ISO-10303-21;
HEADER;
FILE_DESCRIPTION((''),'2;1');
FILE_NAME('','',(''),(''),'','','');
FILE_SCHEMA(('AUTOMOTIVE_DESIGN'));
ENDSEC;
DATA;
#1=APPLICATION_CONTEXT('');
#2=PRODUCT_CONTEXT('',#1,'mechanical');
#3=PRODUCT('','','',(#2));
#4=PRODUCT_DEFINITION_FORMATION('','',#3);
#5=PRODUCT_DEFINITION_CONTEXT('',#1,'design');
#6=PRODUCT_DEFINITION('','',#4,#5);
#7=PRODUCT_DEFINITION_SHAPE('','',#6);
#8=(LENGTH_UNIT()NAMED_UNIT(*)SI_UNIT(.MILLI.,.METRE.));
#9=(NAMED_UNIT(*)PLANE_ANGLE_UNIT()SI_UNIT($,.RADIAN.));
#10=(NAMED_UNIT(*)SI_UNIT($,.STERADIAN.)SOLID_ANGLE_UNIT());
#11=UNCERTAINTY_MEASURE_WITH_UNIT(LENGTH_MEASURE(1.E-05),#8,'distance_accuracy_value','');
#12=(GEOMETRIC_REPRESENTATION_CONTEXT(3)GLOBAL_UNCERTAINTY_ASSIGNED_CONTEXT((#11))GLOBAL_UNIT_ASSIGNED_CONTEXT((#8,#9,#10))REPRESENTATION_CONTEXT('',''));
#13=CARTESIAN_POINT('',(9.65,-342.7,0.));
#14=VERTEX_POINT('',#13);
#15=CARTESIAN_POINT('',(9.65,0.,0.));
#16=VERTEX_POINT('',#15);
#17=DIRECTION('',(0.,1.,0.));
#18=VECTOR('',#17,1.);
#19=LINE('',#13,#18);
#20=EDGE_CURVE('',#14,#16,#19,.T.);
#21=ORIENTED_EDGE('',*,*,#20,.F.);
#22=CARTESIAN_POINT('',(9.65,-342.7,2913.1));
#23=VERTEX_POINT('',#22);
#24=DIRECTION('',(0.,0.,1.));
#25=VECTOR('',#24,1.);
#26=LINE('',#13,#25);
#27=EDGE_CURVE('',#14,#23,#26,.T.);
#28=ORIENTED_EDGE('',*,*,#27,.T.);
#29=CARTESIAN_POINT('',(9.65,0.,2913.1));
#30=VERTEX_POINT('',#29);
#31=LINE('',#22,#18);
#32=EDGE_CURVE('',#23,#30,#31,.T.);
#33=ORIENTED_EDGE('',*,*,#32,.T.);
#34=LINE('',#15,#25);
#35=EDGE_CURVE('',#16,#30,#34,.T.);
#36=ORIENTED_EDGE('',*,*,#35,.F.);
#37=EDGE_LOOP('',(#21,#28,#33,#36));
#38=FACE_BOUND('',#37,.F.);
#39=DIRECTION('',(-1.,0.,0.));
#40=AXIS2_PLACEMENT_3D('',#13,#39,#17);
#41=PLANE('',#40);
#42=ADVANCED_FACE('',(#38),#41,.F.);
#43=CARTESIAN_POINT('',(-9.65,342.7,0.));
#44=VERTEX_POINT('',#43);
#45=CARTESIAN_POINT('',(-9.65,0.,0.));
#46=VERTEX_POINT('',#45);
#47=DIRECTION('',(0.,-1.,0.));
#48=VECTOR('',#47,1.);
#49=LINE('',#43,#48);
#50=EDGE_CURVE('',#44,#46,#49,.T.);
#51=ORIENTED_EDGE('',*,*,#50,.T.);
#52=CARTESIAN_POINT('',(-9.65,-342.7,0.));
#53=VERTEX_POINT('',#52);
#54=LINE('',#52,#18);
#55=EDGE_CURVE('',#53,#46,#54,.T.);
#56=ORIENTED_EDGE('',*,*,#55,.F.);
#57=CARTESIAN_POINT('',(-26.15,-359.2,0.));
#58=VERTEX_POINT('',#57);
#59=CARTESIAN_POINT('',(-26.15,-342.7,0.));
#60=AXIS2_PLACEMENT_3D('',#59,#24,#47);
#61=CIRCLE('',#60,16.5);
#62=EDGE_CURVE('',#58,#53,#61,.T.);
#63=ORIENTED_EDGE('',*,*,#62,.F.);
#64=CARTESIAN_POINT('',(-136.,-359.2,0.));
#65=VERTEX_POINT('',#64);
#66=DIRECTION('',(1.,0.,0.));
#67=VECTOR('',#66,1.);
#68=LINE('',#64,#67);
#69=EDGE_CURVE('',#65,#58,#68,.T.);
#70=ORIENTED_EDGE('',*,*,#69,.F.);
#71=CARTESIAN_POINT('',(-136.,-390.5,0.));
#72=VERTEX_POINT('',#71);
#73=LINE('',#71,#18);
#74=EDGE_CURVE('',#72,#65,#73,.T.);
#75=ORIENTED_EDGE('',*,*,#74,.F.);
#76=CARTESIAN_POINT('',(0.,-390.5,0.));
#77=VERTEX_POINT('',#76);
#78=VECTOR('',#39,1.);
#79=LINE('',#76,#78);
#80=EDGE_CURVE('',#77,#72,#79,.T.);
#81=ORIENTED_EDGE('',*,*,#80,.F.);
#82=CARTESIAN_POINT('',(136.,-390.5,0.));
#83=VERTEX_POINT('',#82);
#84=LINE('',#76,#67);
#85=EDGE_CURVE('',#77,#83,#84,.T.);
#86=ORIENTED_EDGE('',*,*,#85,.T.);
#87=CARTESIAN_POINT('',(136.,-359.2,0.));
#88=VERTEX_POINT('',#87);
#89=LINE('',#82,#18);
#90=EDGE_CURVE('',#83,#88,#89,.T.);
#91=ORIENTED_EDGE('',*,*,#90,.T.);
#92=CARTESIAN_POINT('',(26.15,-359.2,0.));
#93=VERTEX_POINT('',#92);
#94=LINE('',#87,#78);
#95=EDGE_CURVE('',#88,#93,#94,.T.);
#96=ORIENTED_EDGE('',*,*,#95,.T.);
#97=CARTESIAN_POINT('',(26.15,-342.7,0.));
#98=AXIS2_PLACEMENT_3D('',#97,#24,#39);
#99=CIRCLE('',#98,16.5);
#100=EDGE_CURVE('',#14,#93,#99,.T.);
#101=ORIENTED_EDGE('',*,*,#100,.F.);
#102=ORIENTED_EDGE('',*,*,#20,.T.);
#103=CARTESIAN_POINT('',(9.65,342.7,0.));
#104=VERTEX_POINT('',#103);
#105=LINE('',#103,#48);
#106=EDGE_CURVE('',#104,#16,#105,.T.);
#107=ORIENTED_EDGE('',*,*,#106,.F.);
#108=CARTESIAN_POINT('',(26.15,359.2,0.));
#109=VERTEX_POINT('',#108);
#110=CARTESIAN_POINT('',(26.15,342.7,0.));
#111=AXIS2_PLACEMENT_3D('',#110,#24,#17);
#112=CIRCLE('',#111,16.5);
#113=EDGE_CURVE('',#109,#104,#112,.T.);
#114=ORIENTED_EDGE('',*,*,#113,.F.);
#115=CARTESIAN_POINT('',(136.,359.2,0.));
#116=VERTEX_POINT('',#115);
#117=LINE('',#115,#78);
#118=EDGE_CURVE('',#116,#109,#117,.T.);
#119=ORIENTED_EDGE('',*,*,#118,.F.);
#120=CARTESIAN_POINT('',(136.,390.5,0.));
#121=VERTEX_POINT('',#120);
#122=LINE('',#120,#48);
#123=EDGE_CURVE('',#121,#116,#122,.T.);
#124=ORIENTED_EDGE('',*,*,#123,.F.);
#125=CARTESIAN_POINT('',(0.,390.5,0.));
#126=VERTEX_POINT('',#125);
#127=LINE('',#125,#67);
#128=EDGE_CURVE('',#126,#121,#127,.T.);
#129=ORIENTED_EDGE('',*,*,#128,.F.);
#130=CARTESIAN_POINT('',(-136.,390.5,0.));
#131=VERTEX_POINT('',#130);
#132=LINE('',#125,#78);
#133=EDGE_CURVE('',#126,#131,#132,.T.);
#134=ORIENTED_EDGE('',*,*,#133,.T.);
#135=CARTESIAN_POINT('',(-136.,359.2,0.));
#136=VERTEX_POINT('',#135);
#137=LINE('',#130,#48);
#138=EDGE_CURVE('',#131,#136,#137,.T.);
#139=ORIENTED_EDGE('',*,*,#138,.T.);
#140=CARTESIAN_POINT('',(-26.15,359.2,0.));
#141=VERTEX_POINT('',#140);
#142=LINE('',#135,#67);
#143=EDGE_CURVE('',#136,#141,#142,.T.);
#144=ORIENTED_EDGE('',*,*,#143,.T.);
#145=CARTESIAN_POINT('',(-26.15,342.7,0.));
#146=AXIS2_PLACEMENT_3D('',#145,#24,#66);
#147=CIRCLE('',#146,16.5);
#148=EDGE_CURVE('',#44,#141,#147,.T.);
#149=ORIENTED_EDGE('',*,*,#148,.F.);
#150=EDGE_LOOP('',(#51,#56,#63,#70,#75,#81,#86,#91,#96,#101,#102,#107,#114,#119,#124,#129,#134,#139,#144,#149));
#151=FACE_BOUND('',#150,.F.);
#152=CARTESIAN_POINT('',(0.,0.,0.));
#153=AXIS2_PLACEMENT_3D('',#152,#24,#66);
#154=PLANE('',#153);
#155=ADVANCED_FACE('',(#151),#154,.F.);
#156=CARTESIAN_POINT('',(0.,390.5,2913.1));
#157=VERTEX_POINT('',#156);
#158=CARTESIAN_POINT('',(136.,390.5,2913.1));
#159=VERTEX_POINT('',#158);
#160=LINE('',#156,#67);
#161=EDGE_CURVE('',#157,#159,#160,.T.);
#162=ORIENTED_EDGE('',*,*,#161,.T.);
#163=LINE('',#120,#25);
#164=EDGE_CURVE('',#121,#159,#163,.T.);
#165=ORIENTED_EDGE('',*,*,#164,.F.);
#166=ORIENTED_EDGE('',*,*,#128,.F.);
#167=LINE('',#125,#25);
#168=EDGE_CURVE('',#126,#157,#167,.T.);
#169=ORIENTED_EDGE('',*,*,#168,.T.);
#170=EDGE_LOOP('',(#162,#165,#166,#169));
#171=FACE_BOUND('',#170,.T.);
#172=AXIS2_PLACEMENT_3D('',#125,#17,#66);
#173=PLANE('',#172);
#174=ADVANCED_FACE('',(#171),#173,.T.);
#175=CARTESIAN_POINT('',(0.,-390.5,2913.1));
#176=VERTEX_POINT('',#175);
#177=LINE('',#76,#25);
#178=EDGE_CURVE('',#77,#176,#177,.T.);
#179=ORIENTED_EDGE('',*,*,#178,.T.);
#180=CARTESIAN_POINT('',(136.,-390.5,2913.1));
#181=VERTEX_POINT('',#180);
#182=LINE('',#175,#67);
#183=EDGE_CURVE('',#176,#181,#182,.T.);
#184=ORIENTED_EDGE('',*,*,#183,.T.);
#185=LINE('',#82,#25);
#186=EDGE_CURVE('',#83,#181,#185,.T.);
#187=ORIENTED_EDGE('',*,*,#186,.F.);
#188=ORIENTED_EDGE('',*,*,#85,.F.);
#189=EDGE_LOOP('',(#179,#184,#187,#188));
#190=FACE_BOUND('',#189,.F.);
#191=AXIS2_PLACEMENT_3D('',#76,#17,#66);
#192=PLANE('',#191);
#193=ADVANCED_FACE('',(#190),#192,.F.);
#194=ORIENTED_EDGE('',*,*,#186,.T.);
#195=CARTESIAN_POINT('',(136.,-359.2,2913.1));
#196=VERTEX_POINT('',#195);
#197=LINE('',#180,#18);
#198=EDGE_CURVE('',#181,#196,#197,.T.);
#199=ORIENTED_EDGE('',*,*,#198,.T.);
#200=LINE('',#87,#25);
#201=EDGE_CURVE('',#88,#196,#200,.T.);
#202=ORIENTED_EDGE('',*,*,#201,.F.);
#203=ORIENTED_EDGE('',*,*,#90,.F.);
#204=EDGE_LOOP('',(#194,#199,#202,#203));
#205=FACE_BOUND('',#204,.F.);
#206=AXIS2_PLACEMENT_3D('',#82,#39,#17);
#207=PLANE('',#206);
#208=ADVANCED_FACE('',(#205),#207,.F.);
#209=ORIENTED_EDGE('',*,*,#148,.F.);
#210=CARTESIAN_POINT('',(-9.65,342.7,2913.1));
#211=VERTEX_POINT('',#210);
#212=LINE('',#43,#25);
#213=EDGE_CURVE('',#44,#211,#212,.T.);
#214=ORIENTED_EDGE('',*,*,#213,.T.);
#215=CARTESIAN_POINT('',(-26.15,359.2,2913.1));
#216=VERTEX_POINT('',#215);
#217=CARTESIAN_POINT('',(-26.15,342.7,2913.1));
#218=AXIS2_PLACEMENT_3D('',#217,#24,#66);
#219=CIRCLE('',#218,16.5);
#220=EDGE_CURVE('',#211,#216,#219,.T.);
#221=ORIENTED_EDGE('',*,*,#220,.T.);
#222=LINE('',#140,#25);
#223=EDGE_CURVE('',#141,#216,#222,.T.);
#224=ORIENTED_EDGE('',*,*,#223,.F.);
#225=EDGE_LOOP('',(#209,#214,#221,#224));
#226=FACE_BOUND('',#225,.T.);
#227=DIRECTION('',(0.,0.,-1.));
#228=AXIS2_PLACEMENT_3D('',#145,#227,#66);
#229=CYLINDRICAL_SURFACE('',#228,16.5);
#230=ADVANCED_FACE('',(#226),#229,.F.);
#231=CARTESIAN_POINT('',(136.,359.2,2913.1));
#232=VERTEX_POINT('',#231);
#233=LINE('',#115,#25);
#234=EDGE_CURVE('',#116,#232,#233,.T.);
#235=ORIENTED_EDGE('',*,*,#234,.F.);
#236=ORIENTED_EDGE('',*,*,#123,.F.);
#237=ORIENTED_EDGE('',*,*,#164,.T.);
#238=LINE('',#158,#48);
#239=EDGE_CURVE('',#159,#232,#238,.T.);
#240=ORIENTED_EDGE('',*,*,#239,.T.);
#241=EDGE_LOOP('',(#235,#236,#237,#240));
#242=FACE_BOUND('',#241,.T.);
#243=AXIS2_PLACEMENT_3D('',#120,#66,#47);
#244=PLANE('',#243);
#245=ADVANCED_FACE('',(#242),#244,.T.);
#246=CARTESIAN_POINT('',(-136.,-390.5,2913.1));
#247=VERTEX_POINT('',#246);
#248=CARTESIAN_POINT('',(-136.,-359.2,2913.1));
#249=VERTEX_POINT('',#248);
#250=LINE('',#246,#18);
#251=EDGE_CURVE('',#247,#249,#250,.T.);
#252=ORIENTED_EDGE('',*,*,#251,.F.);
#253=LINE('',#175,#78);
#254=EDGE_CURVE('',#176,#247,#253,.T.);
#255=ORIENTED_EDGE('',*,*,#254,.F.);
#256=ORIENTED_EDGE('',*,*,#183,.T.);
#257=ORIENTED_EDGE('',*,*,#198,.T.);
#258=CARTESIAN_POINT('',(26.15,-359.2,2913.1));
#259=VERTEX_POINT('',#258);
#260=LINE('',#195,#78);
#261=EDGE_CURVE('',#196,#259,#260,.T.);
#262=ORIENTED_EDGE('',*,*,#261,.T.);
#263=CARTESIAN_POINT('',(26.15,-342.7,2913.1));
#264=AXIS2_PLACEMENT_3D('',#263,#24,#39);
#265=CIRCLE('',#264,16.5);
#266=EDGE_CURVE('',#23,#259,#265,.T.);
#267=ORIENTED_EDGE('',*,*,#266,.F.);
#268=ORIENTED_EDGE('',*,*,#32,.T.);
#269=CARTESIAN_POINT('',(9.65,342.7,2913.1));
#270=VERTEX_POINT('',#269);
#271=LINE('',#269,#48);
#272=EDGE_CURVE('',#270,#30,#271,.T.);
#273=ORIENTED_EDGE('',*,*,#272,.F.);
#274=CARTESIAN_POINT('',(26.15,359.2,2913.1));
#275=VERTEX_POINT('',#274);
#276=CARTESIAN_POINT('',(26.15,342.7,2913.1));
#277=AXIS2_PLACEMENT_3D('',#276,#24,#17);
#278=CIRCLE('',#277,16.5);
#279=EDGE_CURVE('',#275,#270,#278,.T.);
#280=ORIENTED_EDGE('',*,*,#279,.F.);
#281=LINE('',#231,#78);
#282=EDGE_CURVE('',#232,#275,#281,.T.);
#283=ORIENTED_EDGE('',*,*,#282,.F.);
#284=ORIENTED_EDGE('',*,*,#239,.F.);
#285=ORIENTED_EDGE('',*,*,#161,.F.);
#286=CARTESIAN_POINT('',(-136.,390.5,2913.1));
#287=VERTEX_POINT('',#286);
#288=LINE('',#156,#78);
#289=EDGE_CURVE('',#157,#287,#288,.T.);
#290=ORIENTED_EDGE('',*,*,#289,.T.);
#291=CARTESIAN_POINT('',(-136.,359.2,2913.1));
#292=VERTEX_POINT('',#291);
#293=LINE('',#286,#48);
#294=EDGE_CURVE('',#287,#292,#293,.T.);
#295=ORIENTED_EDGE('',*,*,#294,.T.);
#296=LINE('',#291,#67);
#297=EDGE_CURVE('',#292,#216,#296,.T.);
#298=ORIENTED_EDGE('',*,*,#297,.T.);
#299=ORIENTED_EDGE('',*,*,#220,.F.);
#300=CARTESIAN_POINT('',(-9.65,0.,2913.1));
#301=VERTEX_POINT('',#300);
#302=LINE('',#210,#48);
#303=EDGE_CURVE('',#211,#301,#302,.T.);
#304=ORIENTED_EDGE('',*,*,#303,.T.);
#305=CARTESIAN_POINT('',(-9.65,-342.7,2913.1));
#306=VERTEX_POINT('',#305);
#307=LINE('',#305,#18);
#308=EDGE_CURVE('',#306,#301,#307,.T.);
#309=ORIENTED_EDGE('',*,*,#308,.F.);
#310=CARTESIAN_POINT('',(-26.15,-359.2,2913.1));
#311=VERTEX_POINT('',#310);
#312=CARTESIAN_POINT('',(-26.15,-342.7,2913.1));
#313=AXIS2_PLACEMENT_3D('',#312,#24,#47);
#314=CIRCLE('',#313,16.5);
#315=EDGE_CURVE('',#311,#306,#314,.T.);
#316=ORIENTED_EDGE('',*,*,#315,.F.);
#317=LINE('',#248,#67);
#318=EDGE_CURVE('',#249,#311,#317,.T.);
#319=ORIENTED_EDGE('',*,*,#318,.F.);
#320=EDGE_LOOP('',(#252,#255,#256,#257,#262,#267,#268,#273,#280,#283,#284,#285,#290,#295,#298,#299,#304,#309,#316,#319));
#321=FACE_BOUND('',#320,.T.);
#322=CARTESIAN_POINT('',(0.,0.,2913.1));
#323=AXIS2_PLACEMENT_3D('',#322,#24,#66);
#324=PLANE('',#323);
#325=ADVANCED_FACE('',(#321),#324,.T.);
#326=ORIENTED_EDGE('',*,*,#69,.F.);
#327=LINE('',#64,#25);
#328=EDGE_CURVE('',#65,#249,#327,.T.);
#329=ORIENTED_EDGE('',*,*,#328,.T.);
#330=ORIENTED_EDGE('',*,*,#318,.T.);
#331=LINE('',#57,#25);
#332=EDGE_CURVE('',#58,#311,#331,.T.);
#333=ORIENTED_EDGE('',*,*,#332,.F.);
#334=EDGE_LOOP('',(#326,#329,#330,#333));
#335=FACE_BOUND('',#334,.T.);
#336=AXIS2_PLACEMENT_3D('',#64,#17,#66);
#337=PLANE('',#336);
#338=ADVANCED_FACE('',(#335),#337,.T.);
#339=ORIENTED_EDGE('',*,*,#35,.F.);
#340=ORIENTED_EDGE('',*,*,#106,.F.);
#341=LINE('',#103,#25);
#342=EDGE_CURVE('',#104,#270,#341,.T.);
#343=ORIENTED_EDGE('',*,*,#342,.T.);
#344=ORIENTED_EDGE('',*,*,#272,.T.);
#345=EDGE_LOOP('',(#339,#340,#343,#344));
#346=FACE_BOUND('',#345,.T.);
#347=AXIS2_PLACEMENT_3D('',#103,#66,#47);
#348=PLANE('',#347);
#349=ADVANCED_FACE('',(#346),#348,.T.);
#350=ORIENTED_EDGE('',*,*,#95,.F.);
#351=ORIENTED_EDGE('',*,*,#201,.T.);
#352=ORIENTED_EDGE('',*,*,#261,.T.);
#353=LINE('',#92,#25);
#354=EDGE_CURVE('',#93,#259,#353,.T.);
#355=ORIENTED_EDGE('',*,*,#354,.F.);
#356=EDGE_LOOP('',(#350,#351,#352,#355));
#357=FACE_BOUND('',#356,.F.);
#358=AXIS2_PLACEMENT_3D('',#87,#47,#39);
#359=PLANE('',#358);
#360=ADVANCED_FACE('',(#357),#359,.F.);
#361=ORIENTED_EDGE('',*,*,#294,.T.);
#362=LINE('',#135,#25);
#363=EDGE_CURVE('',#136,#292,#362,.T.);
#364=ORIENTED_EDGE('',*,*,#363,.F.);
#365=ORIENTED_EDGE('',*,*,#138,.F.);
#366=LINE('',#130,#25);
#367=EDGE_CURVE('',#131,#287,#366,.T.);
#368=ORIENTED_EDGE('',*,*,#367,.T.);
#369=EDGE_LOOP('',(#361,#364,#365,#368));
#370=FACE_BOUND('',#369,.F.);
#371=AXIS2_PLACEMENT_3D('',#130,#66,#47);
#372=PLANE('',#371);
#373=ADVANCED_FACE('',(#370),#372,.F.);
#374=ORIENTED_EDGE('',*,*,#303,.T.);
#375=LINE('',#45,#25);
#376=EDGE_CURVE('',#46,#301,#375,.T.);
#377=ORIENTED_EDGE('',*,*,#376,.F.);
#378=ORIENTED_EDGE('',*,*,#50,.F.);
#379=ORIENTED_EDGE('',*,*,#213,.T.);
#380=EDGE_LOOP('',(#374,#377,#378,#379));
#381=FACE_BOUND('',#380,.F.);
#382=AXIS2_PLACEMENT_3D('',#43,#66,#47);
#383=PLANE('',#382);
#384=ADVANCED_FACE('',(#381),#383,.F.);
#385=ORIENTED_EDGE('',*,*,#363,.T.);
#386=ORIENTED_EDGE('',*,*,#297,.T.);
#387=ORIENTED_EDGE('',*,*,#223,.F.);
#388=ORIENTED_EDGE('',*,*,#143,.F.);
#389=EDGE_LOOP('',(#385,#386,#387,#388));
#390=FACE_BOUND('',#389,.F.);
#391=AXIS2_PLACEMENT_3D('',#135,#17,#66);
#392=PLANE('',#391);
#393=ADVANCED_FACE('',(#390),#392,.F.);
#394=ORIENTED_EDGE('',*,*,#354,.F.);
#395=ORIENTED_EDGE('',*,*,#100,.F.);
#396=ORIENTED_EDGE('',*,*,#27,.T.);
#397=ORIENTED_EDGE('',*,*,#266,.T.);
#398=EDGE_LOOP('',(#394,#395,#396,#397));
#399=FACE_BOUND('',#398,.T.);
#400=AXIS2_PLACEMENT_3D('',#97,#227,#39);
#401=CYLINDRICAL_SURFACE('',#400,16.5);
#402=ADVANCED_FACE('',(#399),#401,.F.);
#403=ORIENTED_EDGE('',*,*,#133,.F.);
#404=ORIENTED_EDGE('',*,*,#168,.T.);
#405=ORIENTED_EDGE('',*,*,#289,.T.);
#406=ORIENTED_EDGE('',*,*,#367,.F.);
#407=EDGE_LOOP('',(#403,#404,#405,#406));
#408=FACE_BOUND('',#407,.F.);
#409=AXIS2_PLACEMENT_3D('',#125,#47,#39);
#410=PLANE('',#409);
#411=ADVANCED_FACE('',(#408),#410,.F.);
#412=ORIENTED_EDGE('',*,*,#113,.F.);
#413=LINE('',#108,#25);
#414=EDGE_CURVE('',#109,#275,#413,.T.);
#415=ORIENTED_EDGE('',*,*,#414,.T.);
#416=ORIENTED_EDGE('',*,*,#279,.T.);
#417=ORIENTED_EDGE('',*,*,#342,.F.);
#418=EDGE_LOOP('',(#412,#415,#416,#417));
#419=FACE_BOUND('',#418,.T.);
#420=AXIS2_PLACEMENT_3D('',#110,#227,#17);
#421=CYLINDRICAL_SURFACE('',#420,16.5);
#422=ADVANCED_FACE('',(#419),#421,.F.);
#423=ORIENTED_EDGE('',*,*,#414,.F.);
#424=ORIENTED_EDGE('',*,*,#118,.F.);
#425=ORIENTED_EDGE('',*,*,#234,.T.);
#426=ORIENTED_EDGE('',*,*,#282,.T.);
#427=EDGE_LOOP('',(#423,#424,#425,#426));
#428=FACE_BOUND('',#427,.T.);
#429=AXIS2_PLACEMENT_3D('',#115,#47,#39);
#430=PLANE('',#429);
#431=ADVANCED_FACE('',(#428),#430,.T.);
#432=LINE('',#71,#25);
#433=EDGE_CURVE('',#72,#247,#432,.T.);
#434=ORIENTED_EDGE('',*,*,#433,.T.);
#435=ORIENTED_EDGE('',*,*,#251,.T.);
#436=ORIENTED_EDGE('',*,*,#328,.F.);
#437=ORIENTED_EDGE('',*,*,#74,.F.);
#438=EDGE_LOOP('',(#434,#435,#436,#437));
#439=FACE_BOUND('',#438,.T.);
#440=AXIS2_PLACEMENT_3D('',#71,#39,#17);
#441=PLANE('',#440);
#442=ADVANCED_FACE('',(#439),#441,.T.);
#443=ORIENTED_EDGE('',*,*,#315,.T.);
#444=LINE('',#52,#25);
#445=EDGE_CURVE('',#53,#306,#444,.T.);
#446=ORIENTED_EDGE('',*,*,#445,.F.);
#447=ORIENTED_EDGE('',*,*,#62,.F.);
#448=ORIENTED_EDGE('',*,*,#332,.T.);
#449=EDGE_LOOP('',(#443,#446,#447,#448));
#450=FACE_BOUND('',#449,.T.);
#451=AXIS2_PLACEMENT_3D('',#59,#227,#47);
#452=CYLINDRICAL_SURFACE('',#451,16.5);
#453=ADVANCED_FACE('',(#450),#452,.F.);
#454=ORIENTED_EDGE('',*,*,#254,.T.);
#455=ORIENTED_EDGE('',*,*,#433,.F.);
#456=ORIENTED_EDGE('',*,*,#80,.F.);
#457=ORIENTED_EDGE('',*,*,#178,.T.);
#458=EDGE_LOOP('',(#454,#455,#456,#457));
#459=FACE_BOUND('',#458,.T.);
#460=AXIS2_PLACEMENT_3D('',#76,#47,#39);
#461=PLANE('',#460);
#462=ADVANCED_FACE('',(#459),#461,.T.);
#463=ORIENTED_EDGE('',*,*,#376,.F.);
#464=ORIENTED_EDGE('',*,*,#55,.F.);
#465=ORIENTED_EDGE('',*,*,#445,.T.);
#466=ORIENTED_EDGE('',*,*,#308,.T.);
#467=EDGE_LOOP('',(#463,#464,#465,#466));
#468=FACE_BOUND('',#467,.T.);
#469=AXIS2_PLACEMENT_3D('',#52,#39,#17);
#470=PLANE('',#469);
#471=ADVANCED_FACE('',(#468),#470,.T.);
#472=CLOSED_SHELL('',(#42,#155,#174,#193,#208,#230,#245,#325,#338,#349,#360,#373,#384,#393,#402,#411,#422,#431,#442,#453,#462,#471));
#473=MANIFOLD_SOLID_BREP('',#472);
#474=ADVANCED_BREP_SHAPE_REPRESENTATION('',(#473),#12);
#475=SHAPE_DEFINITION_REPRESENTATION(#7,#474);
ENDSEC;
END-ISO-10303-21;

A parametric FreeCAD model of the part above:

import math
import FreeCAD as App
import Part
import Sketcher
from FreeCAD import Vector

doc = App.newDocument("Part")
body = doc.addObject("PartDesign::Body", "Body")

# Sketch on XY plane
sketch1 = body.newObject("Sketcher::SketchObject", "Sketch")
sketch1.AttachmentSupport = (doc.getObject("XY_Plane"), [""])
sketch1.MapMode = "FlatFace"
sketch1.addGeometry([
    Part.LineSegment(Vector(-136, -359, 0), Vector(-136, -390, 0)),  # 0
    Part.LineSegment(Vector(-136, -390, 0), Vector(136, -390, 0)),  # 1
    Part.LineSegment(Vector(136, -390, 0), Vector(136, -359, 0)),  # 2
    Part.LineSegment(Vector(136, -359, 0), Vector(26, -359, 0)),  # 3
    Part.ArcOfCircle(Part.Circle(Vector(26, -343, 0), Vector(0, 0, 1), 16), math.radians(180), math.radians(270)),  # 4
    Part.LineSegment(Vector(10, -343, 0), Vector(10, 343, 0)),  # 5
    Part.ArcOfCircle(Part.Circle(Vector(26, 343, 0), Vector(0, 0, 1), 16), math.radians(90), math.radians(180)),  # 6
    Part.LineSegment(Vector(26, 359, 0), Vector(136, 359, 0)),  # 7
    Part.LineSegment(Vector(136, 359, 0), Vector(136, 390, 0)),  # 8
    Part.LineSegment(Vector(136, 390, 0), Vector(-136, 390, 0)),  # 9
    Part.LineSegment(Vector(-136, 390, 0), Vector(-136, 359, 0)),  # 10
    Part.LineSegment(Vector(-136, 359, 0), Vector(-26, 359, 0)),  # 11
    Part.ArcOfCircle(Part.Circle(Vector(-26, 343, 0), Vector(0, 0, 1), 16), math.radians(0), math.radians(90)),  # 12
    Part.LineSegment(Vector(-10, 343, 0), Vector(-10, -343, 0)),  # 13
    Part.ArcOfCircle(Part.Circle(Vector(-26, -343, 0), Vector(0, 0, 1), 16), math.radians(-90), math.radians(0)),  # 14
    Part.LineSegment(Vector(-26, -359, 0), Vector(-136, -359, 0)),  # 15
], False)
sketch1.addConstraint([
    Sketcher.Constraint("Coincident", 0, 2, 1, 1),
    Sketcher.Constraint("Coincident", 1, 2, 2, 1),
    Sketcher.Constraint("Coincident", 2, 2, 3, 1),
    Sketcher.Constraint("Tangent", 3, 2, 4, 2),
    Sketcher.Constraint("Tangent", 4, 1, 5, 1),
    Sketcher.Constraint("Tangent", 5, 2, 6, 2),
    Sketcher.Constraint("Tangent", 6, 1, 7, 1),
    Sketcher.Constraint("Coincident", 7, 2, 8, 1),
    Sketcher.Constraint("Coincident", 8, 2, 9, 1),
    Sketcher.Constraint("Coincident", 9, 2, 10, 1),
    Sketcher.Constraint("Coincident", 10, 2, 11, 1),
    Sketcher.Constraint("Tangent", 11, 2, 12, 2),
    Sketcher.Constraint("Tangent", 12, 1, 13, 1),
    Sketcher.Constraint("Tangent", 13, 2, 14, 2),
    Sketcher.Constraint("Tangent", 14, 1, 15, 1),
    Sketcher.Constraint("Coincident", 15, 2, 0, 1),
    Sketcher.Constraint("Vertical", 0),
    Sketcher.Constraint("Horizontal", 1),
    Sketcher.Constraint("Vertical", 2),
    Sketcher.Constraint("Horizontal", 3),
    Sketcher.Constraint("Vertical", 5),
    Sketcher.Constraint("Horizontal", 7),
    Sketcher.Constraint("Vertical", 8),
    Sketcher.Constraint("Horizontal", 9),
    Sketcher.Constraint("Vertical", 10),
    Sketcher.Constraint("Horizontal", 11),
    Sketcher.Constraint("Vertical", 13),
    Sketcher.Constraint("Horizontal", 15),
    Sketcher.Constraint("Equal", 4, 6),
    Sketcher.Constraint("Equal", 6, 12),
    Sketcher.Constraint("Equal", 12, 14),
    Sketcher.Constraint("Symmetric", 4, 3, 12, 3, -1, 1),
    Sketcher.Constraint("Symmetric", 0, 2, 8, 2, -1, 1),
    Sketcher.Constraint("Symmetric", 7, 2, 10, 2, -2),
    Sketcher.Constraint("Symmetric", 2, 2, 15, 2, -2),
    Sketcher.Constraint("Radius", 4, 16.5),
    Sketcher.Constraint("DistanceY", 0, 2, 0, 1, 31.3),
    Sketcher.Constraint("DistanceX", 0, 2, -1, 1, 136.0),
    Sketcher.Constraint("DistanceY", 0, 2, -1, 1, 390.5),
    Sketcher.Constraint("DistanceX", -1, 1, 4, 1, 9.65),
])
pad1 = body.newObject("PartDesign::Pad", "Pad")
pad1.Profile = sketch1
pad1.Length = 2913.1

doc.recompute()
